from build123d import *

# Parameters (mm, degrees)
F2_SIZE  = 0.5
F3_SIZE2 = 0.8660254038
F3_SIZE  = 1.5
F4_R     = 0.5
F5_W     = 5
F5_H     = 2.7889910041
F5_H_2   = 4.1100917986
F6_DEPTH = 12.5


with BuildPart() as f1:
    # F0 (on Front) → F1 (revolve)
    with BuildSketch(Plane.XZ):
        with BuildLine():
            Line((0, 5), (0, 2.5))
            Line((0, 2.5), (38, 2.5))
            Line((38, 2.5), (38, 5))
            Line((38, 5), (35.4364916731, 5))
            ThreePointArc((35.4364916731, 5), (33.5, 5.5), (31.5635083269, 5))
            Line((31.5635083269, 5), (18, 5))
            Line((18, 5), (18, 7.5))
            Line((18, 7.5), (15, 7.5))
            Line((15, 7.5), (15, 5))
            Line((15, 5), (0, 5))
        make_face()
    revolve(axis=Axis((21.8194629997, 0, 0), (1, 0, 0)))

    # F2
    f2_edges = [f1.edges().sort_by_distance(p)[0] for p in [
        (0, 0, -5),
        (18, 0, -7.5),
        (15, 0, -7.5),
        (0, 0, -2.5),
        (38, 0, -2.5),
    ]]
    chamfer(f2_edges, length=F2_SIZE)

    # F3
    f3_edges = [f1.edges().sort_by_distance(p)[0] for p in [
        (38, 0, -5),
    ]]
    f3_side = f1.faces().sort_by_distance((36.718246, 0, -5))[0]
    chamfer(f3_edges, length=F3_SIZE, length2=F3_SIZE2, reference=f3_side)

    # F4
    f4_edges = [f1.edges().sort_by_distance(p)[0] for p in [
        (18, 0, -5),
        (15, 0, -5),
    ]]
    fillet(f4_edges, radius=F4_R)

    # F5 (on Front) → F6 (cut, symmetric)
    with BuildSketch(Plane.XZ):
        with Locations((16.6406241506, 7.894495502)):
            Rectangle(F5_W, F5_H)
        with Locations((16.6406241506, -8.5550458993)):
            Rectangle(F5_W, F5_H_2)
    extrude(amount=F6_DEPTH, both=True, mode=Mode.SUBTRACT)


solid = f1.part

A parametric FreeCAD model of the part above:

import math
import FreeCAD as App
import Part
import Sketcher
from FreeCAD import Vector
Q = App.Units.Quantity


def edges_at(feature, points):
    """Names of the edges that pass closest to the given points."""
    edges = feature.Shape.Edges
    near = lambda p: min(range(len(edges)), key=lambda i: edges[i].distToShape(Part.Vertex(*p))[0])
    return sorted({f"Edge{near(p) + 1}" for p in points})

doc = App.newDocument("Part")
params = doc.addObject("Spreadsheet::Sheet", "Params")
for row, (alias, value) in enumerate([
    ("sketch1_radius", "4 mm"),
    ("sketch1_width", "38 mm"),
    ("sketch1_width2", "3 mm"),
    ("sketch1_width3", "15 mm"),
    ("sketch1_height", "2.5 mm"),
    ("revolution_angle", "360 deg"),
    ("chamfer_size", "0.5 mm"),
    ("chamfer2_size", "1.5 mm"),
    ("chamfer2_size2", "0.866025 mm"),
    ("fillet_radius", "0.5 mm"),
    ("sketch2_width", "5 mm"),
    ("pocket1_length", "25 mm"),
], start=1):
    params.set(f"A{row}", alias)
    params.set(f"B{row}", "=" + value)
    params.setAlias(f"B{row}", alias)

body = doc.addObject("PartDesign::Body", "Body")

sketch1 = body.newObject("Sketcher::SketchObject", "Sketch")
sketch1.AttachmentSupport = (doc.getObject("XZ_Plane"), [""])
sketch1.MapMode = "FlatFace"
sketch1.addGeometry([
    Part.LineSegment(Vector(0, 5, 0), Vector(0, 2.5, 0)),
    Part.LineSegment(Vector(0, 2.5, 0), Vector(38, 2.5, 0)),
    Part.LineSegment(Vector(38, 2.5, 0), Vector(38, 5, 0)),
    Part.LineSegment(Vector(38, 5, 0), Vector(35.4, 5, 0)),
    Part.ArcOfCircle(Part.Circle(Vector(33.5, 1.5, 0), Vector(0, 0, 1), 4), math.radians(61), math.radians(119)),
    Part.LineSegment(Vector(31.6, 5, 0), Vector(18, 5, 0)),
    Part.LineSegment(Vector(18, 5, 0), Vector(18, 7.5, 0)),
    Part.LineSegment(Vector(18, 7.5, 0), Vector(15, 7.5, 0)),
    Part.LineSegment(Vector(15, 7.5, 0), Vector(15, 5, 0)),
    Part.LineSegment(Vector(15, 5, 0), Vector(0, 5, 0)),
], False)
sketch1.addConstraint([
    Sketcher.Constraint("Coincident", 0, 2, 1, 1),
    Sketcher.Constraint("Coincident", 1, 2, 2, 1),
    Sketcher.Constraint("Coincident", 2, 2, 3, 1),
    Sketcher.Constraint("Coincident", 3, 2, 4, 1),
    Sketcher.Constraint("Coincident", 4, 2, 5, 1),
    Sketcher.Constraint("Coincident", 5, 2, 6, 1),
    Sketcher.Constraint("Coincident", 6, 2, 7, 1),
    Sketcher.Constraint("Coincident", 7, 2, 8, 1),
    Sketcher.Constraint("Coincident", 8, 2, 9, 1),
    Sketcher.Constraint("Coincident", 9, 2, 0, 1),
    Sketcher.Constraint("Vertical", 0),
    Sketcher.Constraint("Horizontal", 1),
    Sketcher.Constraint("Vertical", 2),
    Sketcher.Constraint("Horizontal", 3),
    Sketcher.Constraint("Horizontal", 5),
    Sketcher.Constraint("Vertical", 6),
    Sketcher.Constraint("Horizontal", 7),
    Sketcher.Constraint("Vertical", 8),
    Sketcher.Constraint("Horizontal", 9),
    Sketcher.Constraint("PointOnObject", 0, 2, -2),
    Sketcher.Constraint("Horizontal", 3, 2, 4, 2),
    Sketcher.Constraint("Horizontal", 5, 2, 8, 2),
    Sketcher.Constraint("Equal", 2, 6),
    Sketcher.Constraint("Radius", 4, Q("4 mm")),
    Sketcher.Constraint("DistanceX", 1, 1, 1, 2, Q("38 mm")),
    Sketcher.Constraint("DistanceX", 7, 2, 7, 1, Q("3 mm")),
    Sketcher.Constraint("DistanceX", 9, 2, 9, 1, Q("15 mm")),
    Sketcher.Constraint("DistanceY", 0, 2, 0, 1, Q("2.5 mm")),
    Sketcher.Constraint("DistanceY", -1, 1, 2, 2, Q("5 mm")),
    Sketcher.Constraint("DistanceY", 4, 3, 0, 2, Q("1 mm")),
    Sketcher.Constraint("DistanceX", -1, 1, 4, 3, Q("33.5 mm")),
])
sketch1.setExpression("Constraints[23]", "Params.sketch1_radius")
sketch1.setExpression("Constraints[24]", "Params.sketch1_width")
sketch1.setExpression("Constraints[25]", "Params.sketch1_width2")
sketch1.setExpression("Constraints[26]", "Params.sketch1_width3")
sketch1.setExpression("Constraints[27]", "Params.sketch1_height")
revolution = body.newObject("PartDesign::Revolution", "Revolution")
revolution.Profile = sketch1
revolution.ReferenceAxis = (sketch1, ["H_Axis"])
revolution.setExpression("Angle", "Params.revolution_angle")
doc.recompute()

chamfer = body.newObject("PartDesign::Chamfer", "Chamfer")
chamfer.Base = (revolution, edges_at(revolution, [
    (0, 0, -5),
    (18, 0, -7.5),
    (15, 0, -7.5),
    (0, 0, -2.5),
    (38, 0, -2.5),
]))
chamfer.setExpression("Size", "Params.chamfer_size")
doc.recompute()

chamfer2 = body.newObject("PartDesign::Chamfer", "Chamfer001")
chamfer2.Base = (chamfer, edges_at(chamfer, [(38, 0, -5)]))
chamfer2.ChamferType = "Two distances"
chamfer2.setExpression("Size", "Params.chamfer2_size")
chamfer2.setExpression("Size2", "Params.chamfer2_size2")
chamfer2.FlipDirection = True
doc.recompute()

fillet = body.newObject("PartDesign::Fillet", "Fillet")
fillet.Base = (chamfer2, edges_at(chamfer2, [(18, 0, -5), (15, 0, -5)]))
fillet.setExpression("Radius", "Params.fillet_radius")

sketch2 = body.newObject("Sketcher::SketchObject", "Sketch001")
sketch2.AttachmentSupport = (doc.getObject("XZ_Plane"), [""])
sketch2.MapMode = "FlatFace"
sketch2.addGeometry([
    Part.LineSegment(Vector(14.1, 9.3, 0), Vector(14.1, 6.5, 0)),
    Part.LineSegment(Vector(14.1, 6.5, 0), Vector(19.1, 6.5, 0)),
    Part.LineSegment(Vector(19.1, 6.5, 0), Vector(19.1, 9.3, 0)),
    Part.LineSegment(Vector(19.1, 9.3, 0), Vector(14.1, 9.3, 0)),
    Part.LineSegment(Vector(14.1, -6.5, 0), Vector(14.1, -10.6, 0)),
    Part.LineSegment(Vector(14.1, -10.6, 0), Vector(19.1, -10.6, 0)),
    Part.LineSegment(Vector(19.1, -10.6, 0), Vector(19.1, -6.5, 0)),
    Part.LineSegment(Vector(19.1, -6.5, 0), Vector(14.1, -6.5, 0)),
], False)
sketch2.addConstraint([
    Sketcher.Constraint("Coincident", 0, 2, 1, 1),
    Sketcher.Constraint("Coincident", 1, 2, 2, 1),
    Sketcher.Constraint("Coincident", 2, 2, 3, 1),
    Sketcher.Constraint("Coincident", 3, 2, 0, 1),
    Sketcher.Constraint("Coincident", 4, 2, 5, 1),
    Sketcher.Constraint("Coincident", 5, 2, 6, 1),
    Sketcher.Constraint("Coincident", 6, 2, 7, 1),
    Sketcher.Constraint("Coincident", 7, 2, 4, 1),
    Sketcher.Constraint("Vertical", 0),
    Sketcher.Constraint("Horizontal", 1),
    Sketcher.Constraint("Vertical", 2),
    Sketcher.Constraint("Horizontal", 3),
    Sketcher.Constraint("Vertical", 4),
    Sketcher.Constraint("Horizontal", 5),
    Sketcher.Constraint("Vertical", 6),
    Sketcher.Constraint("Horizontal", 7),
    Sketcher.Constraint("Symmetric", 1, 2, 6, 2, -1),
    Sketcher.Constraint("Vertical", 3, 2, 4, 2),
    Sketcher.Constraint("DistanceX", 1, 1, 1, 2, Q("5 mm")),
    Sketcher.Constraint("DistanceY", 6, 2, 1, 2, Q("13 mm")),
    Sketcher.Constraint("DistanceY", 0, 2, 0, 1, Q("2.788991 mm")),
    Sketcher.Constraint("DistanceY", 4, 2, 4, 1, Q("4.110092 mm")),
    Sketcher.Constraint("DistanceX", -1, 1, 0, 2, Q("14.140624 mm")),
])
sketch2.setExpression("Constraints[18]", "Params.sketch2_width")
pocket1 = body.newObject("PartDesign::Pocket", "Pocket")
pocket1.Profile = sketch2
pocket1.setExpression("Length", "Params.pocket1_length")
pocket1.Midplane = True

doc.recompute()
